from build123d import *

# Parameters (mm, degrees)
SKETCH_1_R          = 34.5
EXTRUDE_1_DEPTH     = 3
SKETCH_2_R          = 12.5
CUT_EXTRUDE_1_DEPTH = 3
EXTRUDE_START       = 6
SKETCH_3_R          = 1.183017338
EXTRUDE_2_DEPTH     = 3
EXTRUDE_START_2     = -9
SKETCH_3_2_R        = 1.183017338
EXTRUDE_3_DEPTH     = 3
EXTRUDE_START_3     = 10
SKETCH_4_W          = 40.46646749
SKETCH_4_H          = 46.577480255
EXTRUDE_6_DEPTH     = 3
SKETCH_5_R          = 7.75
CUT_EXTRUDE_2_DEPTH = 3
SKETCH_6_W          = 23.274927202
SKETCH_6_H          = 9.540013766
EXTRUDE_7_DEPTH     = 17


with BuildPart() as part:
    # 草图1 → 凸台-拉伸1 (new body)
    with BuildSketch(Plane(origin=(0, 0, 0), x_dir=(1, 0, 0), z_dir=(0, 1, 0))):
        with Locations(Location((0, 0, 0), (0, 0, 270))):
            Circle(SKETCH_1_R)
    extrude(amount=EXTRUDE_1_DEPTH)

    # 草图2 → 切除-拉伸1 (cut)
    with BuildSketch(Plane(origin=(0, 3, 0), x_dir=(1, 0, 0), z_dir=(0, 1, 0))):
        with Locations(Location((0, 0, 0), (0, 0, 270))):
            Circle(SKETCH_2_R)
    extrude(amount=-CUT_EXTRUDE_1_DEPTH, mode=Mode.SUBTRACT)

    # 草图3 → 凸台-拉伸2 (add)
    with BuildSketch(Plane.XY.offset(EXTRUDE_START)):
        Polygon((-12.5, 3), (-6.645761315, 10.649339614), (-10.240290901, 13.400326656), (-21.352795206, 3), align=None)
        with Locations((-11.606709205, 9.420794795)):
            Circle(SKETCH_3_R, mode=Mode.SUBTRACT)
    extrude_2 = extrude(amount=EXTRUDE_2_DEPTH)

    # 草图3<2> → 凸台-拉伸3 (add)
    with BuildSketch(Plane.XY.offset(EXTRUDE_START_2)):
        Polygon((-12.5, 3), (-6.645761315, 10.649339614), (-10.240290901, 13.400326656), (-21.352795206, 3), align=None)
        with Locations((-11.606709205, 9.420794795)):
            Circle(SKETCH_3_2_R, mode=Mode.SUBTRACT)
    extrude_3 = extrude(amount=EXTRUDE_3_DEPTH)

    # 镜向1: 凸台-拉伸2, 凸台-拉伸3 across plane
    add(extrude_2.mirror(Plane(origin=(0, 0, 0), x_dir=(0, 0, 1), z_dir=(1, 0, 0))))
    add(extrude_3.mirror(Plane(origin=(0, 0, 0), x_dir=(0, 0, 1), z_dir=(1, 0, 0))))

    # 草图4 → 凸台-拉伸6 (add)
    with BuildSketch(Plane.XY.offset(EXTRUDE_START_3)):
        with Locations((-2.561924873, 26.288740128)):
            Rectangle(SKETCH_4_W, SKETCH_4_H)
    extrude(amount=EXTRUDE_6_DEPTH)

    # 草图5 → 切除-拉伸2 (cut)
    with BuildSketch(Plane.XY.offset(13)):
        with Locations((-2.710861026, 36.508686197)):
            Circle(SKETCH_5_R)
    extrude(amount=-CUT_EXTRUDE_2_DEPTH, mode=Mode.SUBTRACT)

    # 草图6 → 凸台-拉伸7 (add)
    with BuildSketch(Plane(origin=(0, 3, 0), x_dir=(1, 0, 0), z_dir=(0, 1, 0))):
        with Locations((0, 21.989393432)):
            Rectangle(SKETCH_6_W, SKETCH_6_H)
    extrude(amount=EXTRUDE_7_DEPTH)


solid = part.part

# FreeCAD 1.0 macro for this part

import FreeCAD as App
import Part
import Sketcher
from FreeCAD import Vector

doc = App.newDocument("Part")
body = doc.addObject("PartDesign::Body", "Body")

sketch1 = body.newObject("Sketcher::SketchObject", "Sketch")
sketch1.AttachmentSupport = (doc.getObject("XZ_Plane"), [""])
sketch1.MapMode = "FlatFace"
sketch1.addGeometry(Part.Circle(Vector(0, 0, 0), Vector(0, 0, 1), 34), False)
sketch1.addConstraint([
    Sketcher.Constraint("Coincident", 0, 3, -1, 1),
    Sketcher.Constraint("Diameter", 0, 69.0),
])
pad1 = body.newObject("PartDesign::Pad", "Pad")
pad1.Profile = sketch1
pad1.Length = 3
pad1.Reversed = True

sketch2 = body.newObject("Sketcher::SketchObject", "Sketch001")
sketch2.AttachmentSupport = (doc.getObject("XZ_Plane"), [""])
sketch2.MapMode = "FlatFace"
sketch2.AttachmentOffset = App.Placement(Vector(0, 0, -3), App.Rotation())
sketch2.addGeometry(Part.Circle(Vector(0, 0, 0), Vector(0, 0, 1), 12), False)
sketch2.addConstraint([
    Sketcher.Constraint("Coincident", 0, 3, -1, 1),
    Sketcher.Constraint("Diameter", 0, 25.0),
])
pocket1 = body.newObject("PartDesign::Pocket", "Pocket")
pocket1.Profile = sketch2
pocket1.Length = 3
pocket1.Reversed = True

sketch3 = body.newObject("Sketcher::SketchObject", "Sketch002")
sketch3.AttachmentSupport = (doc.getObject("XY_Plane"), [""])
sketch3.MapMode = "FlatFace"
sketch3.AttachmentOffset = App.Placement(Vector(0, 0, 6), App.Rotation())
sketch3.addGeometry([
    Part.LineSegment(Vector(-12.5, 3, 0), Vector(-6.6, 10.6, 0)),
    Part.LineSegment(Vector(-6.6, 10.6, 0), Vector(-10.2, 13.4, 0)),
    Part.LineSegment(Vector(-10.2, 13.4, 0), Vector(-21.4, 3, 0)),
    Part.LineSegment(Vector(-21.4, 3, 0), Vector(-12.5, 3, 0)),
    Part.Circle(Vector(-11.6, 9.4, 0), Vector(0, 0, 1), 1.2),
], False)
sketch3.addConstraint([
    Sketcher.Constraint("Coincident", 0, 2, 1, 1),
    Sketcher.Constraint("Coincident", 1, 2, 2, 1),
    Sketcher.Constraint("Coincident", 2, 2, 3, 1),
    Sketcher.Constraint("Coincident", 3, 2, 0, 1),
    Sketcher.Constraint("Horizontal", 3),
    Sketcher.Constraint("Perpendicular", 0, 1),
    Sketcher.Constraint("DistanceY", -1, 1, 2, 2, 3.0),
    Sketcher.Constraint("DistanceX", 3, 2, -1, 1, 12.5),
    Sketcher.Constraint("Diameter", 4, 2.366035),
    Sketcher.Constraint("Distance", 2, 15.220202),
    Sketcher.Constraint("Distance", 0, 9.632471),
    Sketcher.Constraint("Distance", 1, 4.52643),
    Sketcher.Constraint("DistanceX", 3, 1, 3, 2, 8.852795),
    Sketcher.Constraint("DistanceX", 4, 3, -1, 1, 11.606709),
    Sketcher.Constraint("DistanceY", 4, 3, 1, 2, 3.979532),
])
pad2 = body.newObject("PartDesign::Pad", "Pad001")
pad2.Profile = sketch3
pad2.Length = 3

sketch4 = body.newObject("Sketcher::SketchObject", "Sketch003")
sketch4.AttachmentSupport = (doc.getObject("XY_Plane"), [""])
sketch4.MapMode = "FlatFace"
sketch4.AttachmentOffset = App.Placement(Vector(0, 0, -9), App.Rotation())
sketch4.addGeometry([
    Part.LineSegment(Vector(-12.5, 3, 0), Vector(-6.6, 10.6, 0)),
    Part.LineSegment(Vector(-6.6, 10.6, 0), Vector(-10.2, 13.4, 0)),
    Part.LineSegment(Vector(-10.2, 13.4, 0), Vector(-21.4, 3, 0)),
    Part.LineSegment(Vector(-21.4, 3, 0), Vector(-12.5, 3, 0)),
    Part.Circle(Vector(-11.6, 9.4, 0), Vector(0, 0, 1), 1.2),
], False)
sketch4.addConstraint([
    Sketcher.Constraint("Coincident", 0, 2, 1, 1),
    Sketcher.Constraint("Coincident", 1, 2, 2, 1),
    Sketcher.Constraint("Coincident", 2, 2, 3, 1),
    Sketcher.Constraint("Coincident", 3, 2, 0, 1),
    Sketcher.Constraint("Horizontal", 3),
    Sketcher.Constraint("Perpendicular", 0, 1),
    Sketcher.Constraint("DistanceY", -1, 1, 2, 2, 3.0),
    Sketcher.Constraint("DistanceX", 3, 2, -1, 1, 12.5),
    Sketcher.Constraint("Diameter", 4, 2.366035),
    Sketcher.Constraint("Distance", 2, 15.220202),
    Sketcher.Constraint("Distance", 0, 9.632471),
    Sketcher.Constraint("Distance", 1, 4.52643),
    Sketcher.Constraint("DistanceX", 3, 1, 3, 2, 8.852795),
    Sketcher.Constraint("DistanceX", 4, 3, -1, 1, 11.606709),
    Sketcher.Constraint("DistanceY", 4, 3, 1, 2, 3.979532),
])
pad3 = body.newObject("PartDesign::Pad", "Pad002")
pad3.Profile = sketch4
pad3.Length = 3
doc.recompute()

mirrored = body.newObject("PartDesign::Mirrored", "Mirrored")
mirrored.Originals = [pad2, pad3]
mirrored.MirrorPlane = (doc.getObject("YZ_Plane"), [""])
body.Tip = mirrored

sketch5 = body.newObject("Sketcher::SketchObject", "Sketch004")
sketch5.AttachmentSupport = (doc.getObject("XY_Plane"), [""])
sketch5.MapMode = "FlatFace"
sketch5.AttachmentOffset = App.Placement(Vector(0, 0, 10), App.Rotation())
sketch5.addGeometry([
    Part.LineSegment(Vector(-23, 50, 0), Vector(-23, 3, 0)),
    Part.LineSegment(Vector(-23, 3, 0), Vector(18, 3, 0)),
    Part.LineSegment(Vector(18, 3, 0), Vector(18, 50, 0)),
    Part.LineSegment(Vector(18, 50, 0), Vector(-23, 50, 0)),
], False)
sketch5.addConstraint([
    Sketcher.Constraint("Coincident", 0, 2, 1, 1),
    Sketcher.Constraint("Coincident", 1, 2, 2, 1),
    Sketcher.Constraint("Coincident", 2, 2, 3, 1),
    Sketcher.Constraint("Coincident", 3, 2, 0, 1),
    Sketcher.Constraint("Vertical", 0),
    Sketcher.Constraint("Horizontal", 1),
    Sketcher.Constraint("Vertical", 2),
    Sketcher.Constraint("Horizontal", 3),
    Sketcher.Constraint("DistanceY", -1, 1, 0, 2, 3.0),
    Sketcher.Constraint("DistanceY", 0, 2, 0, 1, 46.57748),
    Sketcher.Constraint("DistanceX", 1, 1, 1, 2, 40.466467),
    Sketcher.Constraint("DistanceX", 0, 2, -1, 1, 22.795159),
])
pad4 = body.newObject("PartDesign::Pad", "Pad003")
pad4.Profile = sketch5
pad4.Length = 3

sketch6 = body.newObject("Sketcher::SketchObject", "Sketch005")
sketch6.AttachmentSupport = (doc.getObject("XY_Plane"), [""])
sketch6.MapMode = "FlatFace"
sketch6.AttachmentOffset = App.Placement(Vector(0, 0, 13), App.Rotation())
sketch6.addGeometry(Part.Circle(Vector(-3, 37, 0), Vector(0, 0, 1), 8), False)
sketch6.addConstraint([
    Sketcher.Constraint("Diameter", 0, 15.5),
    Sketcher.Constraint("DistanceX", 0, 3, -1, 1, 2.710861),
    Sketcher.Constraint("DistanceY", -1, 1, 0, 3, 36.508686),
])
pocket2 = body.newObject("PartDesign::Pocket", "Pocket001")
pocket2.Profile = sketch6
pocket2.Length = 3

sketch7 = body.newObject("Sketcher::SketchObject", "Sketch006")
sketch7.AttachmentSupport = (doc.getObject("XZ_Plane"), [""])
sketch7.MapMode = "FlatFace"
sketch7.AttachmentOffset = App.Placement(Vector(0, 0, -3), App.Rotation())
sketch7.addGeometry([
    Part.LineSegment(Vector(-12, -27, 0), Vector(-12, -17, 0)),
    Part.LineSegment(Vector(-12, -17, 0), Vector(12, -17, 0)),
    Part.LineSegment(Vector(12, -17, 0), Vector(12, -27, 0)),
    Part.LineSegment(Vector(12, -27, 0), Vector(-12, -27, 0)),
], False)
sketch7.addConstraint([
    Sketcher.Constraint("Coincident", 0, 2, 1, 1),
    Sketcher.Constraint("Coincident", 1, 2, 2, 1),
    Sketcher.Constraint("Coincident", 2, 2, 3, 1),
    Sketcher.Constraint("Coincident", 3, 2, 0, 1),
    Sketcher.Constraint("Vertical", 0),
    Sketcher.Constraint("Horizontal", 1),
    Sketcher.Constraint("Vertical", 2),
    Sketcher.Constraint("Horizontal", 3),
    Sketcher.Constraint("DistanceY", 2, 2, -1, 1, 26.7594),
    Sketcher.Constraint("DistanceX", 1, 1, 1, 2, 23.274927),
    Sketcher.Constraint("DistanceY", 0, 1, 0, 2, 9.540014),
    Sketcher.Constraint("DistanceX", 0, 2, -1, 1, 11.637464),
])
pad5 = body.newObject("PartDesign::Pad", "Pad004")
pad5.Profile = sketch7
pad5.Length = 17
pad5.Reversed = True

doc.recompute()
